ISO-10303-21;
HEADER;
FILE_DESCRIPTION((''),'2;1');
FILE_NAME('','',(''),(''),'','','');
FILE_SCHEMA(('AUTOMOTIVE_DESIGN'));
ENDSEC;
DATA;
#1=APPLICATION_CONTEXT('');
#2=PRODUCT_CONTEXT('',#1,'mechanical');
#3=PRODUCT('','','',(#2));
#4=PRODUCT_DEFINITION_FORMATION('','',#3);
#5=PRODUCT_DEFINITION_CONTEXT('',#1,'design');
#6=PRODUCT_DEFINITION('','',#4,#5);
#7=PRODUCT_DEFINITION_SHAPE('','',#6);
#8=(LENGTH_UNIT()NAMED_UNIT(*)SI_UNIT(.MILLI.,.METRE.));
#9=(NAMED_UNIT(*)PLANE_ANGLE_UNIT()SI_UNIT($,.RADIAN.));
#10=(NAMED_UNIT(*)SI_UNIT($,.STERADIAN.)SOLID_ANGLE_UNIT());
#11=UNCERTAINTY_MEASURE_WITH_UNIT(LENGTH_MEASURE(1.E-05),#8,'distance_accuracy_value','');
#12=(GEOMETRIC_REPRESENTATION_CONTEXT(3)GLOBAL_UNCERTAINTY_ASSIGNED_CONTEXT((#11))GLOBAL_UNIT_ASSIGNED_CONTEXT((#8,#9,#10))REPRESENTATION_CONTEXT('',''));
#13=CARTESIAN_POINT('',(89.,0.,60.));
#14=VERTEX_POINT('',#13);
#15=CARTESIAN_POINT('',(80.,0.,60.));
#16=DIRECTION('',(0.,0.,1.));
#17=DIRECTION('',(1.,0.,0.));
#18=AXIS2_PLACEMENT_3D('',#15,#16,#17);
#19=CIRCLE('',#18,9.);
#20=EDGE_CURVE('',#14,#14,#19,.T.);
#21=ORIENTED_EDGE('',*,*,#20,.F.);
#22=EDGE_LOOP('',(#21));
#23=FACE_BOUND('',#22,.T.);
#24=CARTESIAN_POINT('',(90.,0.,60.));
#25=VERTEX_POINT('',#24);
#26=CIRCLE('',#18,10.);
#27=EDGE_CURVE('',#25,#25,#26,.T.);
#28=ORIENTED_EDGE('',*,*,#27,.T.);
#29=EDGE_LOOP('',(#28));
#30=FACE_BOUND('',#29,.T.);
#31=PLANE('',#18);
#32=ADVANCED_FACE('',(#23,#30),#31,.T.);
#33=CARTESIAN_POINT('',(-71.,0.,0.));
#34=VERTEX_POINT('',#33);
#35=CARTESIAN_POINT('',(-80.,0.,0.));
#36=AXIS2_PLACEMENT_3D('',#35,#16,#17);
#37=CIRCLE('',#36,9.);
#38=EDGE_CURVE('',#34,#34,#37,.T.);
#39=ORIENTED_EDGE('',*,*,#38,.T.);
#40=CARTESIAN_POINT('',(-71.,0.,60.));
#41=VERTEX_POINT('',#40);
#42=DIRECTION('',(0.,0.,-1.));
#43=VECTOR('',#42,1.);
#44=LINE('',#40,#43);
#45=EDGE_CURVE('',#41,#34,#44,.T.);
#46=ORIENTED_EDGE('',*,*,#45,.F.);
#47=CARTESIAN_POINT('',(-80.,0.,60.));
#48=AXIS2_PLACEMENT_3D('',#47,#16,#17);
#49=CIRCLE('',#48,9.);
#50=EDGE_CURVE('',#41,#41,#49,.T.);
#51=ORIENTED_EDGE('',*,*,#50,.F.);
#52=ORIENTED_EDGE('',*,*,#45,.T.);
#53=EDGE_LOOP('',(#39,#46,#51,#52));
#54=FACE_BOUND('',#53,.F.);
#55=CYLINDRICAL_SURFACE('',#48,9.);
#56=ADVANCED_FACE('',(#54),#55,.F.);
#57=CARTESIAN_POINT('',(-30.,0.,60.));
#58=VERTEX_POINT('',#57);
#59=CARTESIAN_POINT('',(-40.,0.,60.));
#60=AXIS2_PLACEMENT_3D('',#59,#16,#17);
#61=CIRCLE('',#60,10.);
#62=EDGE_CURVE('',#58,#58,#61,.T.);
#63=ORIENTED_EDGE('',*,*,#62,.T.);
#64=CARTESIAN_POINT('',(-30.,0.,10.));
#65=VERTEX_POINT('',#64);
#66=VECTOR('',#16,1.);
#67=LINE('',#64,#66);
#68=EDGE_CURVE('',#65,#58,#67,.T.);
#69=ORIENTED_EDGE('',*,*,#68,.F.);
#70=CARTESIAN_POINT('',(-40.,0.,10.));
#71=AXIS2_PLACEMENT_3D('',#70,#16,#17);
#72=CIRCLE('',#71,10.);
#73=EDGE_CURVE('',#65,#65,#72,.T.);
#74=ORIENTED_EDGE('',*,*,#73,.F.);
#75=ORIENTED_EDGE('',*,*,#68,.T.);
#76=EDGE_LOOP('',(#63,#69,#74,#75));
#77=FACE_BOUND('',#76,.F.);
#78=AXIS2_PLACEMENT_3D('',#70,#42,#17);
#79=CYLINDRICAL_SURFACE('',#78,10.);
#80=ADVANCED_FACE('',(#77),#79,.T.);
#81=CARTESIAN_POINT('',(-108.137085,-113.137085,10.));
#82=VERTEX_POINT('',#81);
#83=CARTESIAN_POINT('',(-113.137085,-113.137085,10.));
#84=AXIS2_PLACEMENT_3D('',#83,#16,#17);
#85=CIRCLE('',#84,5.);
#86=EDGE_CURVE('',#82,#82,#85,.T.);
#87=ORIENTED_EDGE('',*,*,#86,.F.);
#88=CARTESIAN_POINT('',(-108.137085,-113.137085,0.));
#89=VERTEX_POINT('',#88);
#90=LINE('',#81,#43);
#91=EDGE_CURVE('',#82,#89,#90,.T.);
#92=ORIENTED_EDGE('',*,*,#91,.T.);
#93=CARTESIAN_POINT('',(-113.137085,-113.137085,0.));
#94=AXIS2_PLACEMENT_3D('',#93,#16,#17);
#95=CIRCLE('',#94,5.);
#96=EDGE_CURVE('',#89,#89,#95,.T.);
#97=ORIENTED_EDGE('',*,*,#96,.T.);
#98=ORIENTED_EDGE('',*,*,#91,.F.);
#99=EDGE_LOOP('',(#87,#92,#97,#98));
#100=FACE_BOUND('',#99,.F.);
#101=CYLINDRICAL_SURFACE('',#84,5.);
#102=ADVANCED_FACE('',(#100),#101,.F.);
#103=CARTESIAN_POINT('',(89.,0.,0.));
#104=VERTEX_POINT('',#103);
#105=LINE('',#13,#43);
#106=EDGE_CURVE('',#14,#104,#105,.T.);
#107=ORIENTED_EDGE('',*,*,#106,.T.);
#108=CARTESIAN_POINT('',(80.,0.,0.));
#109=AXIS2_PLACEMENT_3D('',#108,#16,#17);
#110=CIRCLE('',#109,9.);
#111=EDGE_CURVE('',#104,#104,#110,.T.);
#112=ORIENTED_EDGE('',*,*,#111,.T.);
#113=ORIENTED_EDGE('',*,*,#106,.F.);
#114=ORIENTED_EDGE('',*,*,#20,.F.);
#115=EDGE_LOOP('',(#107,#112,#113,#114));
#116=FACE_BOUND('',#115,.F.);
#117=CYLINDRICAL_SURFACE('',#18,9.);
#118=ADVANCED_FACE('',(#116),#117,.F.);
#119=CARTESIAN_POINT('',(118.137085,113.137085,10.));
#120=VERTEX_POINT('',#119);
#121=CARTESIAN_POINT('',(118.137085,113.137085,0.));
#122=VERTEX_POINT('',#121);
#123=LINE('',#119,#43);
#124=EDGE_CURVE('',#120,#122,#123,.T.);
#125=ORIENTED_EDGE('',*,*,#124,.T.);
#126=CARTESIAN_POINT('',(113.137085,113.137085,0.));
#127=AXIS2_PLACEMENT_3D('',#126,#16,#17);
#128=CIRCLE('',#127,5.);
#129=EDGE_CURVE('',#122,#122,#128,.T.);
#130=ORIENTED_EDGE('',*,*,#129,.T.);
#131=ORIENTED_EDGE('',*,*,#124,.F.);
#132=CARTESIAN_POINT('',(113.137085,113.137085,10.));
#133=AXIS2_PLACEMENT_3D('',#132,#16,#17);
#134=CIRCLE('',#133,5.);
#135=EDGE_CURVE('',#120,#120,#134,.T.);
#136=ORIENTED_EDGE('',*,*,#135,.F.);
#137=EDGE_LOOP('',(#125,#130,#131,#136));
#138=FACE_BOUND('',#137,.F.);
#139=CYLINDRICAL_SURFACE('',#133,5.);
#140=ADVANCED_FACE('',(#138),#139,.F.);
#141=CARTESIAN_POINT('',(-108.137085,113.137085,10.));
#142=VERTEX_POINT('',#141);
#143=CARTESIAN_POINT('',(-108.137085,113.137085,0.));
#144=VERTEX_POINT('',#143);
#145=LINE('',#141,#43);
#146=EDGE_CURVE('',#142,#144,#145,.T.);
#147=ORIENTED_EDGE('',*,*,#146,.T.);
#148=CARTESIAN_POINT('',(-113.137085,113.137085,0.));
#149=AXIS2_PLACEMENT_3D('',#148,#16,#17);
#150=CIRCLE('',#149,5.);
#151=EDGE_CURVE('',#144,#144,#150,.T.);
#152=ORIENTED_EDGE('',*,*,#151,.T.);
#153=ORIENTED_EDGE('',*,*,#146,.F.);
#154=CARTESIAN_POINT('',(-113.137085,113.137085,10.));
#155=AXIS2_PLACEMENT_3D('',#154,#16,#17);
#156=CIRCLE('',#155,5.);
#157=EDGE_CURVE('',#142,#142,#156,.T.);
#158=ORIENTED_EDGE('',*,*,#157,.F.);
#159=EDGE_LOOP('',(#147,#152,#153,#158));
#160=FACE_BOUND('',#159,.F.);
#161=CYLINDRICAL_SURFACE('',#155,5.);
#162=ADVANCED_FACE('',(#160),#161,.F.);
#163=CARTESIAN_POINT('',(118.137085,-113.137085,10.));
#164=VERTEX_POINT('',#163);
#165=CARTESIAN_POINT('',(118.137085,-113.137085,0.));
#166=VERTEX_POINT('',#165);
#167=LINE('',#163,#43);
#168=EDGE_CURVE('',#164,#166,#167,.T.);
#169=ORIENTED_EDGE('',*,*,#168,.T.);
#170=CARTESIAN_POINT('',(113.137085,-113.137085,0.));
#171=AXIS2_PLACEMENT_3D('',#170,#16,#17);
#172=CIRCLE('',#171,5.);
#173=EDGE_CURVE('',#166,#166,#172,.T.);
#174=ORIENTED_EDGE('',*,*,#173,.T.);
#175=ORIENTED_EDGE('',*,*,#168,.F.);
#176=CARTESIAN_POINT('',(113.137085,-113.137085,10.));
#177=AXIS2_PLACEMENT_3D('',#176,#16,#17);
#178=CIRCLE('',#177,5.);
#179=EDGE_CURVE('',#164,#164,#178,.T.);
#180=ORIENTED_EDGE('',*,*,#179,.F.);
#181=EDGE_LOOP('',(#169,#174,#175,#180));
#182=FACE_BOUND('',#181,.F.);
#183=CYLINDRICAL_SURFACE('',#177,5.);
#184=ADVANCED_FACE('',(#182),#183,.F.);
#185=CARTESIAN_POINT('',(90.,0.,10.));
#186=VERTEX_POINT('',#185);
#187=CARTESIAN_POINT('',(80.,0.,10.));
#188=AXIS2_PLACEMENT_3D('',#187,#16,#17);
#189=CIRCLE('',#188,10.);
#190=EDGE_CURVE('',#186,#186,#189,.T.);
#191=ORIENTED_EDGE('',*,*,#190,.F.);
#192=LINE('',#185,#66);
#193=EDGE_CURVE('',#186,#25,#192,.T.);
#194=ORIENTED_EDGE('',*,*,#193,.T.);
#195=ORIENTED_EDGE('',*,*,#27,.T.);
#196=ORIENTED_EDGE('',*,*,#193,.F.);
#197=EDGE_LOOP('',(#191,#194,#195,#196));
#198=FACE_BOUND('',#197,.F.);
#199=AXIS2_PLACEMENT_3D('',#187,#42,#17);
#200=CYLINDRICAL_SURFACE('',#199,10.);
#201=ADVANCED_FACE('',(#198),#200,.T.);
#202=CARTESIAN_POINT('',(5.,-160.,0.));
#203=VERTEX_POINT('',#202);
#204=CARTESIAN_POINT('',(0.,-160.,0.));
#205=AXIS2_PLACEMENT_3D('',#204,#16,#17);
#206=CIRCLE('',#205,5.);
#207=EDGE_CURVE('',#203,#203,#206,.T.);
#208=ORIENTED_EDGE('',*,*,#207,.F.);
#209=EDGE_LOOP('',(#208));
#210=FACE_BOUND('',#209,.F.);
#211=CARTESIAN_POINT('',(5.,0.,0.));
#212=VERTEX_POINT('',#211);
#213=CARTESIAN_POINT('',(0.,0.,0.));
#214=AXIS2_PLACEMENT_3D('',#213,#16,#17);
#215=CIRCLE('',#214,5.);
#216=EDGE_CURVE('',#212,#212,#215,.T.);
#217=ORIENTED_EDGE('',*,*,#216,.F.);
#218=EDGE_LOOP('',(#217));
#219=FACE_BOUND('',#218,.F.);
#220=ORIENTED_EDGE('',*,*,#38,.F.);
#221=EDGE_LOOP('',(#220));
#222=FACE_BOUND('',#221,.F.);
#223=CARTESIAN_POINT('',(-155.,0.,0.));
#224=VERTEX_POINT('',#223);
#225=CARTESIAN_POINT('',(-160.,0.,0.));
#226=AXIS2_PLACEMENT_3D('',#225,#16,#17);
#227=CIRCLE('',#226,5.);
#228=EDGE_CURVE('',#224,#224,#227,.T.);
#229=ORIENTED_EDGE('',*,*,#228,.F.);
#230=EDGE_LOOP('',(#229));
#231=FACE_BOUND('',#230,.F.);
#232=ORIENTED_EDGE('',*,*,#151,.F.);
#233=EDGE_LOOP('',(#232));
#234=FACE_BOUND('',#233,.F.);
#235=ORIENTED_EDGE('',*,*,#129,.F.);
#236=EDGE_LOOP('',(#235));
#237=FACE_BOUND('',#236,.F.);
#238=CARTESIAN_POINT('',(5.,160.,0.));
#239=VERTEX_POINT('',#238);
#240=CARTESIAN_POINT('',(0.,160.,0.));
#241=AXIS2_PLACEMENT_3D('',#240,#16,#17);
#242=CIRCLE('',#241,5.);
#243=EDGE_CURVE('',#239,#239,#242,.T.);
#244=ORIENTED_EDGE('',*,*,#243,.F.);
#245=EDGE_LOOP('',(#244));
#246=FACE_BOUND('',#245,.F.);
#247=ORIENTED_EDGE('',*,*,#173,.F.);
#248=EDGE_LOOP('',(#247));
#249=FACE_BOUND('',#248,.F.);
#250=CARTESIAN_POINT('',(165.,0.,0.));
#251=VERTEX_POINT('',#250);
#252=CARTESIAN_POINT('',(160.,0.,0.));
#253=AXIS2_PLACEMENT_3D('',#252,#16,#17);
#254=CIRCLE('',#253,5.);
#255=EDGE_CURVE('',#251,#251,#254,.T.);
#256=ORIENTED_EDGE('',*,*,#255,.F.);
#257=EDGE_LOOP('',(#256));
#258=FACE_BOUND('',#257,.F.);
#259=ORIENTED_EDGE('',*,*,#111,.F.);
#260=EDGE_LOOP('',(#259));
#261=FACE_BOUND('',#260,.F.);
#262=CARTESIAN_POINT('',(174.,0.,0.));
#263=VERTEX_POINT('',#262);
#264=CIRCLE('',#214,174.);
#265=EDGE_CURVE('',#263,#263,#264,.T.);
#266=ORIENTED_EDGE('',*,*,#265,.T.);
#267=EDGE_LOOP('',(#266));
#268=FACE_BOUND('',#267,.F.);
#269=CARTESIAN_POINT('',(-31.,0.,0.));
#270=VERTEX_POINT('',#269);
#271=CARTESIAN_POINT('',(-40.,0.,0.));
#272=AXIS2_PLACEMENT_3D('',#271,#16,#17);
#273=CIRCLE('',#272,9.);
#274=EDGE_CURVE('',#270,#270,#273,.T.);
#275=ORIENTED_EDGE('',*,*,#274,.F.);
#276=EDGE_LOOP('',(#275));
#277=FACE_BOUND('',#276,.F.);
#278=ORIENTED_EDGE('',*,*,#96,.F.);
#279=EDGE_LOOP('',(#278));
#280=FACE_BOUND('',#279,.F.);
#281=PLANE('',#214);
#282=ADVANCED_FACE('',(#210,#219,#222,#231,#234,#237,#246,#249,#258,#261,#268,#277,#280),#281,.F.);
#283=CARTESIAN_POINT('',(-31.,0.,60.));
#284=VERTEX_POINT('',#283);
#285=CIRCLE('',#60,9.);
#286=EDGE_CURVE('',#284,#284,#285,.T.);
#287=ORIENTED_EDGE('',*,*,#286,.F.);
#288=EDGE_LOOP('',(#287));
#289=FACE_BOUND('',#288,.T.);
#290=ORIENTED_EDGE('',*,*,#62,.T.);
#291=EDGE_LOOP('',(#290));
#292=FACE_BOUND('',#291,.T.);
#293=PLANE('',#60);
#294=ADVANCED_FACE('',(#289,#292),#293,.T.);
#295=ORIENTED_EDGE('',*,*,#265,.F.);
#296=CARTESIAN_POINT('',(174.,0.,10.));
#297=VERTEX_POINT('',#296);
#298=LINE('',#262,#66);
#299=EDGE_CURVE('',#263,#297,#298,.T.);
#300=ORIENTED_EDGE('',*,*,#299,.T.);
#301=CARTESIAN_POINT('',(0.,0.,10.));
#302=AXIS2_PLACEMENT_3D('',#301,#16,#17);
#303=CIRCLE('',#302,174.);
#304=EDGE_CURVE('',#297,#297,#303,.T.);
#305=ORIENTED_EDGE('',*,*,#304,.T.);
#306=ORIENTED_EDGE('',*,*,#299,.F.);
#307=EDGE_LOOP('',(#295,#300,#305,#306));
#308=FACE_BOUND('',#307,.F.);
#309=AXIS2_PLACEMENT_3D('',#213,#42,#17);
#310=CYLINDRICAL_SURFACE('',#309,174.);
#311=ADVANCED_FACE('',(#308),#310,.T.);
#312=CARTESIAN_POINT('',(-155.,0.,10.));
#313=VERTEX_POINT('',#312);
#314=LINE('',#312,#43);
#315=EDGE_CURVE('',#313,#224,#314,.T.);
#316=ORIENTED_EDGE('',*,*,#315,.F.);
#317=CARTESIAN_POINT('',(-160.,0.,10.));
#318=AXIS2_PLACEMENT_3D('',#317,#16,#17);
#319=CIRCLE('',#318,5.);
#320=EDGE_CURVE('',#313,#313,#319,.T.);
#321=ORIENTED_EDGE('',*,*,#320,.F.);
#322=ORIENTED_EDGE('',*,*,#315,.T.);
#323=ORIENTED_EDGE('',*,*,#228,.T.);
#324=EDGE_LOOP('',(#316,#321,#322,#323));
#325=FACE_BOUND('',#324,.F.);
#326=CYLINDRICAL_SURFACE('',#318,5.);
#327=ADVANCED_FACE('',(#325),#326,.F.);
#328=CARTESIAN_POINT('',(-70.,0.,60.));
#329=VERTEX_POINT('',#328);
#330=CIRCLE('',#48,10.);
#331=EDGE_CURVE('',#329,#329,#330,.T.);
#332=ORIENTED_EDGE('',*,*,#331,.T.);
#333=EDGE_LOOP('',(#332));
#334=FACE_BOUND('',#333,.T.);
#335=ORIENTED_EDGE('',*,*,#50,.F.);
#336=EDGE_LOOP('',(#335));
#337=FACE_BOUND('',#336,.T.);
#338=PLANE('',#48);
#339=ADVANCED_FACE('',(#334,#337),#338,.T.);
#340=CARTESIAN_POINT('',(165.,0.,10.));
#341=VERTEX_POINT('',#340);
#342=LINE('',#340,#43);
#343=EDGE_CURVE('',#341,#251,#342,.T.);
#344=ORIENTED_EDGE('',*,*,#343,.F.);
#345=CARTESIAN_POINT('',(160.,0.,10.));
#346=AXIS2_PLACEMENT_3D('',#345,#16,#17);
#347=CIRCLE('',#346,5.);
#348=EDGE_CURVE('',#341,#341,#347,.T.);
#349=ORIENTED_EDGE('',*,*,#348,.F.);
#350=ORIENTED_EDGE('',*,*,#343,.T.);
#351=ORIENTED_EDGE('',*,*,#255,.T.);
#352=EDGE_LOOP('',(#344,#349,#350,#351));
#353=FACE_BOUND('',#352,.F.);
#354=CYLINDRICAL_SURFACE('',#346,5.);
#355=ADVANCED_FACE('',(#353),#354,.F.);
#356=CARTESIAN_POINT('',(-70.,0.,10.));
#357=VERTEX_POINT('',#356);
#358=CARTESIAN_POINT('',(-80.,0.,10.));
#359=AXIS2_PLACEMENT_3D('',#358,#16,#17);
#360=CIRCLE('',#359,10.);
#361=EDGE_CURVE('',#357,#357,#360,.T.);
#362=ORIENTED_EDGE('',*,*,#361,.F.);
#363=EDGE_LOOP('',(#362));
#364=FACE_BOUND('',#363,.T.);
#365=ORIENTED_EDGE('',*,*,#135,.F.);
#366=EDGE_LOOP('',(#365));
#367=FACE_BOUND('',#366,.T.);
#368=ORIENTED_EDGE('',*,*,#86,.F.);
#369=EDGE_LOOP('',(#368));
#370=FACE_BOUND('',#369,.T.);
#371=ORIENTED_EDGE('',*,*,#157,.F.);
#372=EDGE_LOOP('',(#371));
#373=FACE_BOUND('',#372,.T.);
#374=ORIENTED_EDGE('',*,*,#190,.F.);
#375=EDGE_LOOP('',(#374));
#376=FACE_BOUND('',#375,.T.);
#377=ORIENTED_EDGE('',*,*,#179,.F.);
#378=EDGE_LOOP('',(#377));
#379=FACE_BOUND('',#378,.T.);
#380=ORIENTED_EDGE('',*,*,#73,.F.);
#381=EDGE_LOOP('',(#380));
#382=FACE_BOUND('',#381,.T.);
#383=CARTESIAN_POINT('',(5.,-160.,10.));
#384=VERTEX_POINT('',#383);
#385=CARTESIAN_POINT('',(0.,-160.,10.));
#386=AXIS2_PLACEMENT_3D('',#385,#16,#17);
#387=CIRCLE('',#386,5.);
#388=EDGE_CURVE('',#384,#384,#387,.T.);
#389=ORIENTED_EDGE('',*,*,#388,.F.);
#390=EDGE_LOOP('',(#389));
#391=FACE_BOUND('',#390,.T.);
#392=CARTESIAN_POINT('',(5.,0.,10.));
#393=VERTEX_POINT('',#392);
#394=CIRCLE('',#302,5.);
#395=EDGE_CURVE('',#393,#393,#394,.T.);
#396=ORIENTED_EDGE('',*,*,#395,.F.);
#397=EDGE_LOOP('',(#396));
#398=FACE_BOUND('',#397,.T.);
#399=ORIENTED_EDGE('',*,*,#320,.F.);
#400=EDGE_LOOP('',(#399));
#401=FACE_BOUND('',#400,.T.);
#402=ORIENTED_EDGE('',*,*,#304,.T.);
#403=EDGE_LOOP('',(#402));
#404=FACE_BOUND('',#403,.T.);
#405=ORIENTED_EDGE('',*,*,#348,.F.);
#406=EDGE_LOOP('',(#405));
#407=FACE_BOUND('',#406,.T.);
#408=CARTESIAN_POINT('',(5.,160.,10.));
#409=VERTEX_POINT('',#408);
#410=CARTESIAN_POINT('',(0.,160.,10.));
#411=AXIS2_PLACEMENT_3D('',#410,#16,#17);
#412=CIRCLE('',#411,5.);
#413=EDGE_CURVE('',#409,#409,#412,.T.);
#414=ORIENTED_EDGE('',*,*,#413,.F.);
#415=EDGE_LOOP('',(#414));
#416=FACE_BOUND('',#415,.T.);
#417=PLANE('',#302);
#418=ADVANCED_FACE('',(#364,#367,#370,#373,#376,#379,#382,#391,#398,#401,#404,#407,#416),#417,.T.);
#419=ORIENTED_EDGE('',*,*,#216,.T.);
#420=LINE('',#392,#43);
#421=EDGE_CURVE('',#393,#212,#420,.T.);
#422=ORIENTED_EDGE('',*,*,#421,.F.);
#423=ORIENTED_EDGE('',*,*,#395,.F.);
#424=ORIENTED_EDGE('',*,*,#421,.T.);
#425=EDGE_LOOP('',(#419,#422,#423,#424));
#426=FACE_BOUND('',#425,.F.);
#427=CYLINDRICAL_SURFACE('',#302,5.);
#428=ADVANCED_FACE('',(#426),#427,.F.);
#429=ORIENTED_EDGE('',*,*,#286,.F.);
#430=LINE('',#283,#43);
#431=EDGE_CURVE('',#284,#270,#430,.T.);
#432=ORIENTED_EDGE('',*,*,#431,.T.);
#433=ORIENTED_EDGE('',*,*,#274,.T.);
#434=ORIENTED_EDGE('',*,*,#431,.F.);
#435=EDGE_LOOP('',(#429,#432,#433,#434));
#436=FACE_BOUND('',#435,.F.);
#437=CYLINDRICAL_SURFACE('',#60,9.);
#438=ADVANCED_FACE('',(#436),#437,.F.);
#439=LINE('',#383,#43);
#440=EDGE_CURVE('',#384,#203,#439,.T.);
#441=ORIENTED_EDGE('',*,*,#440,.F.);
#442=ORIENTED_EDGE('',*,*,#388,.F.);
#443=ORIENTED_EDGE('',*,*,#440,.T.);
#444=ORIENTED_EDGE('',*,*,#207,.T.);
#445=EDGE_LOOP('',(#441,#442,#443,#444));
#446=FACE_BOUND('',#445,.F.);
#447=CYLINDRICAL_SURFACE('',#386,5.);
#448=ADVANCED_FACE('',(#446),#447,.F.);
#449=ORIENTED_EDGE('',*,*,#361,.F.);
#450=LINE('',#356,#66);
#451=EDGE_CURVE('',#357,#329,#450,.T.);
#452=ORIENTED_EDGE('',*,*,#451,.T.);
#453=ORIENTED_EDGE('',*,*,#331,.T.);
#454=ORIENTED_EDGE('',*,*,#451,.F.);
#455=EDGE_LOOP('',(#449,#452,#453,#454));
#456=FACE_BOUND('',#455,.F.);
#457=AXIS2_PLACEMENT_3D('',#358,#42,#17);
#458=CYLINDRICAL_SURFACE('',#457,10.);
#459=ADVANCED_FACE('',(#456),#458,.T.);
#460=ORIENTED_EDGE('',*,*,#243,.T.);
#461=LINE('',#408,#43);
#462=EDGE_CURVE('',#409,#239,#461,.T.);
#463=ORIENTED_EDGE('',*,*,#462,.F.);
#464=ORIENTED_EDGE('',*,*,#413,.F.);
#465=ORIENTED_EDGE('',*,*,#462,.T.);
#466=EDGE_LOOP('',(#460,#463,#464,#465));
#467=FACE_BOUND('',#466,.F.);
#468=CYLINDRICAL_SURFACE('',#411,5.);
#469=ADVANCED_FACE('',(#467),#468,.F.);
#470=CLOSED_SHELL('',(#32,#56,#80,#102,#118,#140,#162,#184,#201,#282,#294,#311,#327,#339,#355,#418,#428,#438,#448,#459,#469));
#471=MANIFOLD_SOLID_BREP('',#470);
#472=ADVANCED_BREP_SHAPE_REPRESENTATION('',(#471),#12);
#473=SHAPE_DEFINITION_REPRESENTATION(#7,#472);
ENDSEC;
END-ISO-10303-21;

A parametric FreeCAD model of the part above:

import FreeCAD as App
import Part
import Sketcher
Q = App.Units.Quantity

doc = App.newDocument("Part")
body = doc.addObject("PartDesign::Body", "Body")

sketch1 = body.newObject("Sketcher::SketchObject", "Sketch")
sketch1.AttachmentSupport = (doc.getObject("XY_Plane"), [""])
sketch1.MapMode = "FlatFace"
sketch1.addGeometry(Part.Circle(App.Vector(0, 0, 0), App.Vector(0, 0, 1), 174), False)
sketch1.addConstraint([
    Sketcher.Constraint("Coincident", 0, 3, -1, 1),
    Sketcher.Constraint("Diameter", 0, Q("348 mm")),
])
pad1 = body.newObject("PartDesign::Pad", "Pad")
pad1.Profile = sketch1
pad1.Length = 10

sketch2 = body.newObject("Sketcher::SketchObject", "Sketch001")
sketch2.AttachmentSupport = (doc.getObject("XY_Plane"), [""])
sketch2.MapMode = "FlatFace"
sketch2.AttachmentOffset = App.Placement(App.Vector(0, 0, 10), App.Rotation())
sketch2.addGeometry([
    Part.Circle(App.Vector(0, 160, 0), App.Vector(0, 0, 1), 5),
    Part.Circle(App.Vector(-113, 113, 0), App.Vector(0, 0, 1), 5),
    Part.Circle(App.Vector(-160, 0, 0), App.Vector(0, 0, 1), 5),
    Part.Circle(App.Vector(-113, -113, 0), App.Vector(0, 0, 1), 5),
    Part.Circle(App.Vector(0, -160, 0), App.Vector(0, 0, 1), 5),
    Part.Circle(App.Vector(113, -113, 0), App.Vector(0, 0, 1), 5),
    Part.Circle(App.Vector(160, 0, 0), App.Vector(0, 0, 1), 5),
    Part.Circle(App.Vector(113, 113, 0), App.Vector(0, 0, 1), 5),
], False)
sketch2.addConstraint([
    Sketcher.Constraint("Equal", 0, 1),
    Sketcher.Constraint("Equal", 1, 2),
    Sketcher.Constraint("Equal", 2, 3),
    Sketcher.Constraint("Equal", 3, 4),
    Sketcher.Constraint("Equal", 4, 5),
    Sketcher.Constraint("Equal", 5, 6),
    Sketcher.Constraint("Equal", 6, 7),
    Sketcher.Constraint("Symmetric", 0, 3, 4, 3, -1, 1),
    Sketcher.Constraint("Symmetric", 1, 3, 5, 3, -1, 1),
    Sketcher.Constraint("Symmetric", 2, 3, 6, 3, -1, 1),
    Sketcher.Constraint("Symmetric", 3, 3, 7, 3, -1, 1),
    Sketcher.Constraint("Symmetric", 3, 3, 5, 3, -2),
    Sketcher.Constraint("PointOnObject", 0, 3, -2),
    Sketcher.Constraint("PointOnObject", 2, 3, -1),
    Sketcher.Constraint("Diameter", 0, Q("10 mm")),
    Sketcher.Constraint("DistanceY", -1, 1, 0, 3, Q("160 mm")),
    Sketcher.Constraint("DistanceX", 2, 3, -1, 1, Q("160 mm")),
    Sketcher.Constraint("DistanceY", 3, 3, 1, 3, Q("226.27417 mm")),
    Sketcher.Constraint("DistanceX", 3, 3, 5, 3, Q("226.27417 mm")),
])
pocket1 = body.newObject("PartDesign::Pocket", "Pocket")
pocket1.Profile = sketch2
pocket1.Type = "ThroughAll"

sketch3 = body.newObject("Sketcher::SketchObject", "Sketch002")
sketch3.AttachmentSupport = (doc.getObject("XY_Plane"), [""])
sketch3.MapMode = "FlatFace"
sketch3.AttachmentOffset = App.Placement(App.Vector(0, 0, 10), App.Rotation())
sketch3.addGeometry(Part.Circle(App.Vector(0, 0, 0), App.Vector(0, 0, 1), 5), False)
sketch3.addConstraint([
    Sketcher.Constraint("Coincident", 0, 3, -1, 1),
    Sketcher.Constraint("Diameter", 0, Q("10 mm")),
])
pocket2 = body.newObject("PartDesign::Pocket", "Pocket001")
pocket2.Profile = sketch3
pocket2.Type = "ThroughAll"

sketch4 = body.newObject("Sketcher::SketchObject", "Sketch003")
sketch4.AttachmentSupport = (doc.getObject("XY_Plane"), [""])
sketch4.MapMode = "FlatFace"
sketch4.AttachmentOffset = App.Placement(App.Vector(0, 0, 10), App.Rotation())
sketch4.addGeometry([
    Part.Circle(App.Vector(80, 0, 0), App.Vector(0, 0, 1), 10),
    Part.Circle(App.Vector(-40, 0, 0), App.Vector(0, 0, 1), 10),
    Part.Circle(App.Vector(-80, 0, 0), App.Vector(0, 0, 1), 10),
], False)
sketch4.addConstraint([
    Sketcher.Constraint("Equal", 0, 1),
    Sketcher.Constraint("Equal", 1, 2),
    Sketcher.Constraint("Symmetric", 0, 3, 2, 3, -1, 1),
    Sketcher.Constraint("PointOnObject", 0, 3, -1),
    Sketcher.Constraint("PointOnObject", 1, 3, -1),
    Sketcher.Constraint("Diameter", 0, Q("20 mm")),
    Sketcher.Constraint("DistanceX", -1, 1, 0, 3, Q("80 mm")),
    Sketcher.Constraint("DistanceX", 1, 3, -1, 1, Q("40 mm")),
])
pad2 = body.newObject("PartDesign::Pad", "Pad001")
pad2.Profile = sketch4
pad2.Length = 50

sketch5 = body.newObject("Sketcher::SketchObject", "Sketch004")
sketch5.AttachmentSupport = (doc.getObject("XY_Plane"), [""])
sketch5.MapMode = "FlatFace"
sketch5.AttachmentOffset = App.Placement(App.Vector(0, 0, 60), App.Rotation())
sketch5.addGeometry([
    Part.Circle(App.Vector(-80, 0, 0), App.Vector(0, 0, 1), 9),
    Part.Circle(App.Vector(-40, 0, 0), App.Vector(0, 0, 1), 9),
    Part.Circle(App.Vector(80, 0, 0), App.Vector(0, 0, 1), 9),
], False)
sketch5.addConstraint([
    Sketcher.Constraint("Equal", 0, 1),
    Sketcher.Constraint("Equal", 1, 2),
    Sketcher.Constraint("Symmetric", 0, 3, 2, 3, -1, 1),
    Sketcher.Constraint("PointOnObject", 0, 3, -1),
    Sketcher.Constraint("PointOnObject", 1, 3, -1),
    Sketcher.Constraint("Diameter", 0, Q("18 mm")),
    Sketcher.Constraint("DistanceX", 0, 3, -1, 1, Q("80 mm")),
    Sketcher.Constraint("DistanceX", 1, 3, -1, 1, Q("40 mm")),
])
pocket3 = body.newObject("PartDesign::Pocket", "Pocket002")
pocket3.Profile = sketch5
pocket3.Type = "ThroughAll"

doc.recompute()
